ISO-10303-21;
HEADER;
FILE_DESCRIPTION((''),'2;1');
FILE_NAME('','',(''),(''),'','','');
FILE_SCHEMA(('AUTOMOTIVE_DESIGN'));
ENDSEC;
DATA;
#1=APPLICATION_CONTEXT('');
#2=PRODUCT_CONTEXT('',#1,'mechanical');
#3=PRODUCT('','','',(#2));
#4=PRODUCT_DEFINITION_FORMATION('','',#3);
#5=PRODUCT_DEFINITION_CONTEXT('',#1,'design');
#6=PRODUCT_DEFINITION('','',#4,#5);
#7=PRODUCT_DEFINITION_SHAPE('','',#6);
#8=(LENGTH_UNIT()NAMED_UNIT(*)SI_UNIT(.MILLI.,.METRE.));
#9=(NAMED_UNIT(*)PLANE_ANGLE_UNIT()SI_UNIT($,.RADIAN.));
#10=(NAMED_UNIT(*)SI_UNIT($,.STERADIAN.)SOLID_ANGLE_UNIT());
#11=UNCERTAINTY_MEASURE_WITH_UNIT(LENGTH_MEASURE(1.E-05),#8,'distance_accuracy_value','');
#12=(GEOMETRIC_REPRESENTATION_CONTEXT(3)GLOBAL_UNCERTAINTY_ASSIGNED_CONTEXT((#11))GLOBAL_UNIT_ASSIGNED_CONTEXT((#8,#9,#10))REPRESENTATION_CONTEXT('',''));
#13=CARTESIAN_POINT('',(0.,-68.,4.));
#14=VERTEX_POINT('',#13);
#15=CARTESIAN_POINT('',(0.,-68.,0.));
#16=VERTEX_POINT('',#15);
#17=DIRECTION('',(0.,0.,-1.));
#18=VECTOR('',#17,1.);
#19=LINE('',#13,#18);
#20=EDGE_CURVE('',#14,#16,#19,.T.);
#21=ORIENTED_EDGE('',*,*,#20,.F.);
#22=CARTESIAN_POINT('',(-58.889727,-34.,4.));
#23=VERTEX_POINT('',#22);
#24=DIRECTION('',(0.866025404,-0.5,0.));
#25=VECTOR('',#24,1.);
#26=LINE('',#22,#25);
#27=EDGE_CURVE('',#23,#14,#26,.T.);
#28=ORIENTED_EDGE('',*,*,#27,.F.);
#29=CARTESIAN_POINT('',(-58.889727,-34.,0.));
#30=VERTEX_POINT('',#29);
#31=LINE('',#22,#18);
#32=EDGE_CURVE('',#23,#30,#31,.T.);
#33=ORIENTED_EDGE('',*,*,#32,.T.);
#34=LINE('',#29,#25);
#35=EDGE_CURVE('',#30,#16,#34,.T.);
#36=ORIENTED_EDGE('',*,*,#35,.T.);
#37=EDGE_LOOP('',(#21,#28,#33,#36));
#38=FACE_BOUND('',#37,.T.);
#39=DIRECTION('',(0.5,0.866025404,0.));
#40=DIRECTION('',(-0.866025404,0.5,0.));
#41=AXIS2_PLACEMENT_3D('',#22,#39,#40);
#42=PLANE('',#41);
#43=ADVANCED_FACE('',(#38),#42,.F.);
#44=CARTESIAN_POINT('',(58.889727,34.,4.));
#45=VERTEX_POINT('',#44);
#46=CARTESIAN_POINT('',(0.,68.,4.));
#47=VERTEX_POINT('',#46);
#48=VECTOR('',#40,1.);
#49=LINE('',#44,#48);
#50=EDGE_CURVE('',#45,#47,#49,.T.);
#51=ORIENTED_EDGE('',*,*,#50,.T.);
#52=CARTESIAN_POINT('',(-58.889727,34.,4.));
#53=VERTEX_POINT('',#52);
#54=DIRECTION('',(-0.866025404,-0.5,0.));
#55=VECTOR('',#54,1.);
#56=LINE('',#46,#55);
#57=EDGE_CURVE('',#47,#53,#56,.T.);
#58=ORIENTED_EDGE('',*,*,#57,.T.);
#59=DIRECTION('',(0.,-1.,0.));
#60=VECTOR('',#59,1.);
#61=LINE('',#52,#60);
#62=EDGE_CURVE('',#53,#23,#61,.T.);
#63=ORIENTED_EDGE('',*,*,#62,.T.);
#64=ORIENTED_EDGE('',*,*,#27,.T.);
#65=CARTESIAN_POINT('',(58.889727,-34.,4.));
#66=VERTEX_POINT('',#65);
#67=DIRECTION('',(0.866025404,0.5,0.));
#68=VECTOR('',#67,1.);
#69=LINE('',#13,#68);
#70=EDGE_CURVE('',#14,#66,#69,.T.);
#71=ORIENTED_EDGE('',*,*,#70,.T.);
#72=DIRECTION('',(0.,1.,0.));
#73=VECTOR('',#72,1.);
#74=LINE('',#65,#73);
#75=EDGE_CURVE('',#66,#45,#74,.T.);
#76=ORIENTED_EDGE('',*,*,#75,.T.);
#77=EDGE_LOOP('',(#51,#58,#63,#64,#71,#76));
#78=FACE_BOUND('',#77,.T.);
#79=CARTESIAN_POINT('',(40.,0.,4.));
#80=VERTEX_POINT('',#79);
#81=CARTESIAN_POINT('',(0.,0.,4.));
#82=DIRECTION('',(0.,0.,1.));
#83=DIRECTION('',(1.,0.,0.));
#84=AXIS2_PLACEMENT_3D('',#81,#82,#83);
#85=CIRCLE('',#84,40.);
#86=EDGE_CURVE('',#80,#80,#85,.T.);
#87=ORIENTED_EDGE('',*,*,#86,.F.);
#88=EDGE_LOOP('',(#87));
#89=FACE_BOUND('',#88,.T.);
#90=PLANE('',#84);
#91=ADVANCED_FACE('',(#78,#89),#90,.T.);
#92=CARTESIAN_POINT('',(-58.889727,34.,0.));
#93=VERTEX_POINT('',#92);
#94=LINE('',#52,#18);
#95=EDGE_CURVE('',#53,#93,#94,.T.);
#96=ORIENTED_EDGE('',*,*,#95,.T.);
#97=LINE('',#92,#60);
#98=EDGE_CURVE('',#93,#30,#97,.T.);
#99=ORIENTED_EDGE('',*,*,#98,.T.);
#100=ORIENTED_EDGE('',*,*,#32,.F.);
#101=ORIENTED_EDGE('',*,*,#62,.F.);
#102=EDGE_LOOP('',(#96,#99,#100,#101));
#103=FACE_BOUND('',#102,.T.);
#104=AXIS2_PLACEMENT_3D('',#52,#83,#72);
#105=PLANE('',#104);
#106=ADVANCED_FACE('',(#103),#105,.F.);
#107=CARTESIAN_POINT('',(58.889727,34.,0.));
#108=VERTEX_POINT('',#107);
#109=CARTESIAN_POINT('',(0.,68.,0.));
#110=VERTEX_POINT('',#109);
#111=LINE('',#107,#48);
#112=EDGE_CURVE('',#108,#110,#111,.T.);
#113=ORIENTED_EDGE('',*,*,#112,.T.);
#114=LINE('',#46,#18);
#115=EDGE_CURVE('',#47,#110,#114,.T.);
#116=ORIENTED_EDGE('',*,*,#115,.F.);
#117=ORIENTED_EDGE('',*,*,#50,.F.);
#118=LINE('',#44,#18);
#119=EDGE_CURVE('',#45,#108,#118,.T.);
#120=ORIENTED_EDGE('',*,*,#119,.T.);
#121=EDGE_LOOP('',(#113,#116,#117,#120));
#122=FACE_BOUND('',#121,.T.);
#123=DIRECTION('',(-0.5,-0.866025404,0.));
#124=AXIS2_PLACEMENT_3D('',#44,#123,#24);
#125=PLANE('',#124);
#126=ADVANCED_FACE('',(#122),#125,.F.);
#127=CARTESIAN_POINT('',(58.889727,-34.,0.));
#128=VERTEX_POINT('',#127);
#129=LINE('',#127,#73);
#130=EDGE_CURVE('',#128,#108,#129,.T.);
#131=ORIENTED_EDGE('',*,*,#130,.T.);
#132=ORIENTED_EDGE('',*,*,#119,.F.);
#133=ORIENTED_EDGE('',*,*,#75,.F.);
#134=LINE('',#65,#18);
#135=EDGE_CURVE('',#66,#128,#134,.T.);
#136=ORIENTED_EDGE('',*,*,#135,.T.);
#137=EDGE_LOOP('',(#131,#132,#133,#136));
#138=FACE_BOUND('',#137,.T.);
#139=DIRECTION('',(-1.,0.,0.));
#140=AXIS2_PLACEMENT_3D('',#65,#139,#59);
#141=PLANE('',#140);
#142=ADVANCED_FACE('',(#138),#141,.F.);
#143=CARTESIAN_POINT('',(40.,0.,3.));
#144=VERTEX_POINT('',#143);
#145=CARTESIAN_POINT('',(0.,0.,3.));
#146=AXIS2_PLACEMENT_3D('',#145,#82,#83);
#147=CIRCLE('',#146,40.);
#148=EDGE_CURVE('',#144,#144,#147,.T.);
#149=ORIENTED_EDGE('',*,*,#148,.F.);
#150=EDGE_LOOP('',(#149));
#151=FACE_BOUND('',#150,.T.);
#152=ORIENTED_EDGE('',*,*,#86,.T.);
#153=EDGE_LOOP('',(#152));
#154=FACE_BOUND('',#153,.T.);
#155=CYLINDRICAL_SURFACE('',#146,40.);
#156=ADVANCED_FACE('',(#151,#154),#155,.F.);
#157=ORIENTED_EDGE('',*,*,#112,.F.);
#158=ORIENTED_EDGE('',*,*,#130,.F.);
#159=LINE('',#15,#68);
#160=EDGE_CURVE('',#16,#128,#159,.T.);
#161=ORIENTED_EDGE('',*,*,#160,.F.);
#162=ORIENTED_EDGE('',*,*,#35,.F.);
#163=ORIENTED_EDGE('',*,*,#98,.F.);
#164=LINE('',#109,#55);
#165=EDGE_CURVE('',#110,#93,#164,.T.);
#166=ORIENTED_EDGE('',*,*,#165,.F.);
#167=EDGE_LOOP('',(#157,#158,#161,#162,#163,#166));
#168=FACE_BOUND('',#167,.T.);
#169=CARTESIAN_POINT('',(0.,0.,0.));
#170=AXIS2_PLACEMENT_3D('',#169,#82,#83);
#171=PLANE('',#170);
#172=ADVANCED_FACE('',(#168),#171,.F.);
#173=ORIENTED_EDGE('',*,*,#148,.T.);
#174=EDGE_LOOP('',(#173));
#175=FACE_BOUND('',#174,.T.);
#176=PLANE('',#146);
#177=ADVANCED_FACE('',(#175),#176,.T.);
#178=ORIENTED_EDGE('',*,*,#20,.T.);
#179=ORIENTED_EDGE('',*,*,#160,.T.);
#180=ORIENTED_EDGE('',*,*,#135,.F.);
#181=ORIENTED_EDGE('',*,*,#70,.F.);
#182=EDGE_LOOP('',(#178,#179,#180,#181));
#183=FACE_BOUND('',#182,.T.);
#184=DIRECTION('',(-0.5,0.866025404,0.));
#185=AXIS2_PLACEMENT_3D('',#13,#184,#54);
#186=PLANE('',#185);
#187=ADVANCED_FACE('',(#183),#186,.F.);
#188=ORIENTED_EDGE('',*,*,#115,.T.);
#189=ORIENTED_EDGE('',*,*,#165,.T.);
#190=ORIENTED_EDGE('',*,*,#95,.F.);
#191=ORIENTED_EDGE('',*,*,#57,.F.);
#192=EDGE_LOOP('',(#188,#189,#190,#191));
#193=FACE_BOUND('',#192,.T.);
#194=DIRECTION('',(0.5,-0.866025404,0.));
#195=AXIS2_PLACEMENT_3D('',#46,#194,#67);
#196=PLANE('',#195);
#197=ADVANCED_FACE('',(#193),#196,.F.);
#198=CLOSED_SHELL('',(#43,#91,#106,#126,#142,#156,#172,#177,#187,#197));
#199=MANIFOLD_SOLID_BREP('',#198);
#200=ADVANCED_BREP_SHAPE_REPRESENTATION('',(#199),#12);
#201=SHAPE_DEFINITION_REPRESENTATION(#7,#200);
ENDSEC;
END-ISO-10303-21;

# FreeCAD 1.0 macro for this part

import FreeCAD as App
import Part
import Sketcher
from FreeCAD import Vector
Q = App.Units.Quantity

doc = App.newDocument("Part")
body = doc.addObject("PartDesign::Body", "Body")

sketch1 = body.newObject("Sketcher::SketchObject", "Sketch")
sketch1.AttachmentSupport = (doc.getObject("XY_Plane"), [""])
sketch1.MapMode = "FlatFace"
sketch1.addGeometry(Part.LineSegment(Vector(59, -34, 0), Vector(59, 34, 0)), False)
sketch1.addGeometry(Part.LineSegment(Vector(59, 34, 0), Vector(0, 68, 0)), False)
sketch1.addGeometry(Part.LineSegment(Vector(0, 68, 0), Vector(-59, 34, 0)), False)
sketch1.addGeometry(Part.LineSegment(Vector(-59, 34, 0), Vector(-59, -34, 0)), False)
sketch1.addGeometry(Part.LineSegment(Vector(-59, -34, 0), Vector(0, -68, 0)), False)
sketch1.addGeometry(Part.LineSegment(Vector(0, -68, 0), Vector(59, -34, 0)), False)
sketch1.addConstraint(Sketcher.Constraint("Coincident", 0, 2, 1, 1))
sketch1.addConstraint(Sketcher.Constraint("Coincident", 1, 2, 2, 1))
sketch1.addConstraint(Sketcher.Constraint("Coincident", 2, 2, 3, 1))
sketch1.addConstraint(Sketcher.Constraint("Coincident", 3, 2, 4, 1))
sketch1.addConstraint(Sketcher.Constraint("Coincident", 4, 2, 5, 1))
sketch1.addConstraint(Sketcher.Constraint("Coincident", 5, 2, 0, 1))
sketch1.addConstraint(Sketcher.Constraint("Vertical", 0))
sketch1.addConstraint(Sketcher.Constraint("Vertical", 3))
sketch1.addConstraint(Sketcher.Constraint("Symmetric", 0, 2, 3, 2, -1, 1))
sketch1.addConstraint(Sketcher.Constraint("Symmetric", 1, 2, 4, 2, -1, 1))
sketch1.addConstraint(Sketcher.Constraint("PointOnObject", 1, 2, -2))
sketch1.addConstraint(Sketcher.Constraint("Parallel", 2, 5))
sketch1.addConstraint(Sketcher.Constraint("Horizontal", 0, 2, 2, 2))
sketch1.addConstraint(Sketcher.Constraint("DistanceY", 0, 1, 0, 2, 68.0))
sketch1.addConstraint(Sketcher.Constraint("Angle", 1, Q("150 deg")))
sketch1.addConstraint(Sketcher.Constraint("Distance", 1, 68.0))
pad1 = body.newObject("PartDesign::Pad", "Pad")
pad1.Profile = sketch1
pad1.Length = 4

sketch2 = body.newObject("Sketcher::SketchObject", "Sketch001")
sketch2.AttachmentSupport = (doc.getObject("XY_Plane"), [""])
sketch2.MapMode = "FlatFace"
sketch2.AttachmentOffset = App.Placement(Vector(0, 0, 4), App.Rotation())
sketch2.addGeometry(Part.Circle(Vector(0, 0, 0), Vector(0, 0, 1), 40), False)
sketch2.addConstraint(Sketcher.Constraint("Coincident", 0, 3, -1, 1))
sketch2.addConstraint(Sketcher.Constraint("Diameter", 0, 80.0))
pocket1 = body.newObject("PartDesign::Pocket", "Pocket")
pocket1.Profile = sketch2
pocket1.Length = 1

doc.recompute()
